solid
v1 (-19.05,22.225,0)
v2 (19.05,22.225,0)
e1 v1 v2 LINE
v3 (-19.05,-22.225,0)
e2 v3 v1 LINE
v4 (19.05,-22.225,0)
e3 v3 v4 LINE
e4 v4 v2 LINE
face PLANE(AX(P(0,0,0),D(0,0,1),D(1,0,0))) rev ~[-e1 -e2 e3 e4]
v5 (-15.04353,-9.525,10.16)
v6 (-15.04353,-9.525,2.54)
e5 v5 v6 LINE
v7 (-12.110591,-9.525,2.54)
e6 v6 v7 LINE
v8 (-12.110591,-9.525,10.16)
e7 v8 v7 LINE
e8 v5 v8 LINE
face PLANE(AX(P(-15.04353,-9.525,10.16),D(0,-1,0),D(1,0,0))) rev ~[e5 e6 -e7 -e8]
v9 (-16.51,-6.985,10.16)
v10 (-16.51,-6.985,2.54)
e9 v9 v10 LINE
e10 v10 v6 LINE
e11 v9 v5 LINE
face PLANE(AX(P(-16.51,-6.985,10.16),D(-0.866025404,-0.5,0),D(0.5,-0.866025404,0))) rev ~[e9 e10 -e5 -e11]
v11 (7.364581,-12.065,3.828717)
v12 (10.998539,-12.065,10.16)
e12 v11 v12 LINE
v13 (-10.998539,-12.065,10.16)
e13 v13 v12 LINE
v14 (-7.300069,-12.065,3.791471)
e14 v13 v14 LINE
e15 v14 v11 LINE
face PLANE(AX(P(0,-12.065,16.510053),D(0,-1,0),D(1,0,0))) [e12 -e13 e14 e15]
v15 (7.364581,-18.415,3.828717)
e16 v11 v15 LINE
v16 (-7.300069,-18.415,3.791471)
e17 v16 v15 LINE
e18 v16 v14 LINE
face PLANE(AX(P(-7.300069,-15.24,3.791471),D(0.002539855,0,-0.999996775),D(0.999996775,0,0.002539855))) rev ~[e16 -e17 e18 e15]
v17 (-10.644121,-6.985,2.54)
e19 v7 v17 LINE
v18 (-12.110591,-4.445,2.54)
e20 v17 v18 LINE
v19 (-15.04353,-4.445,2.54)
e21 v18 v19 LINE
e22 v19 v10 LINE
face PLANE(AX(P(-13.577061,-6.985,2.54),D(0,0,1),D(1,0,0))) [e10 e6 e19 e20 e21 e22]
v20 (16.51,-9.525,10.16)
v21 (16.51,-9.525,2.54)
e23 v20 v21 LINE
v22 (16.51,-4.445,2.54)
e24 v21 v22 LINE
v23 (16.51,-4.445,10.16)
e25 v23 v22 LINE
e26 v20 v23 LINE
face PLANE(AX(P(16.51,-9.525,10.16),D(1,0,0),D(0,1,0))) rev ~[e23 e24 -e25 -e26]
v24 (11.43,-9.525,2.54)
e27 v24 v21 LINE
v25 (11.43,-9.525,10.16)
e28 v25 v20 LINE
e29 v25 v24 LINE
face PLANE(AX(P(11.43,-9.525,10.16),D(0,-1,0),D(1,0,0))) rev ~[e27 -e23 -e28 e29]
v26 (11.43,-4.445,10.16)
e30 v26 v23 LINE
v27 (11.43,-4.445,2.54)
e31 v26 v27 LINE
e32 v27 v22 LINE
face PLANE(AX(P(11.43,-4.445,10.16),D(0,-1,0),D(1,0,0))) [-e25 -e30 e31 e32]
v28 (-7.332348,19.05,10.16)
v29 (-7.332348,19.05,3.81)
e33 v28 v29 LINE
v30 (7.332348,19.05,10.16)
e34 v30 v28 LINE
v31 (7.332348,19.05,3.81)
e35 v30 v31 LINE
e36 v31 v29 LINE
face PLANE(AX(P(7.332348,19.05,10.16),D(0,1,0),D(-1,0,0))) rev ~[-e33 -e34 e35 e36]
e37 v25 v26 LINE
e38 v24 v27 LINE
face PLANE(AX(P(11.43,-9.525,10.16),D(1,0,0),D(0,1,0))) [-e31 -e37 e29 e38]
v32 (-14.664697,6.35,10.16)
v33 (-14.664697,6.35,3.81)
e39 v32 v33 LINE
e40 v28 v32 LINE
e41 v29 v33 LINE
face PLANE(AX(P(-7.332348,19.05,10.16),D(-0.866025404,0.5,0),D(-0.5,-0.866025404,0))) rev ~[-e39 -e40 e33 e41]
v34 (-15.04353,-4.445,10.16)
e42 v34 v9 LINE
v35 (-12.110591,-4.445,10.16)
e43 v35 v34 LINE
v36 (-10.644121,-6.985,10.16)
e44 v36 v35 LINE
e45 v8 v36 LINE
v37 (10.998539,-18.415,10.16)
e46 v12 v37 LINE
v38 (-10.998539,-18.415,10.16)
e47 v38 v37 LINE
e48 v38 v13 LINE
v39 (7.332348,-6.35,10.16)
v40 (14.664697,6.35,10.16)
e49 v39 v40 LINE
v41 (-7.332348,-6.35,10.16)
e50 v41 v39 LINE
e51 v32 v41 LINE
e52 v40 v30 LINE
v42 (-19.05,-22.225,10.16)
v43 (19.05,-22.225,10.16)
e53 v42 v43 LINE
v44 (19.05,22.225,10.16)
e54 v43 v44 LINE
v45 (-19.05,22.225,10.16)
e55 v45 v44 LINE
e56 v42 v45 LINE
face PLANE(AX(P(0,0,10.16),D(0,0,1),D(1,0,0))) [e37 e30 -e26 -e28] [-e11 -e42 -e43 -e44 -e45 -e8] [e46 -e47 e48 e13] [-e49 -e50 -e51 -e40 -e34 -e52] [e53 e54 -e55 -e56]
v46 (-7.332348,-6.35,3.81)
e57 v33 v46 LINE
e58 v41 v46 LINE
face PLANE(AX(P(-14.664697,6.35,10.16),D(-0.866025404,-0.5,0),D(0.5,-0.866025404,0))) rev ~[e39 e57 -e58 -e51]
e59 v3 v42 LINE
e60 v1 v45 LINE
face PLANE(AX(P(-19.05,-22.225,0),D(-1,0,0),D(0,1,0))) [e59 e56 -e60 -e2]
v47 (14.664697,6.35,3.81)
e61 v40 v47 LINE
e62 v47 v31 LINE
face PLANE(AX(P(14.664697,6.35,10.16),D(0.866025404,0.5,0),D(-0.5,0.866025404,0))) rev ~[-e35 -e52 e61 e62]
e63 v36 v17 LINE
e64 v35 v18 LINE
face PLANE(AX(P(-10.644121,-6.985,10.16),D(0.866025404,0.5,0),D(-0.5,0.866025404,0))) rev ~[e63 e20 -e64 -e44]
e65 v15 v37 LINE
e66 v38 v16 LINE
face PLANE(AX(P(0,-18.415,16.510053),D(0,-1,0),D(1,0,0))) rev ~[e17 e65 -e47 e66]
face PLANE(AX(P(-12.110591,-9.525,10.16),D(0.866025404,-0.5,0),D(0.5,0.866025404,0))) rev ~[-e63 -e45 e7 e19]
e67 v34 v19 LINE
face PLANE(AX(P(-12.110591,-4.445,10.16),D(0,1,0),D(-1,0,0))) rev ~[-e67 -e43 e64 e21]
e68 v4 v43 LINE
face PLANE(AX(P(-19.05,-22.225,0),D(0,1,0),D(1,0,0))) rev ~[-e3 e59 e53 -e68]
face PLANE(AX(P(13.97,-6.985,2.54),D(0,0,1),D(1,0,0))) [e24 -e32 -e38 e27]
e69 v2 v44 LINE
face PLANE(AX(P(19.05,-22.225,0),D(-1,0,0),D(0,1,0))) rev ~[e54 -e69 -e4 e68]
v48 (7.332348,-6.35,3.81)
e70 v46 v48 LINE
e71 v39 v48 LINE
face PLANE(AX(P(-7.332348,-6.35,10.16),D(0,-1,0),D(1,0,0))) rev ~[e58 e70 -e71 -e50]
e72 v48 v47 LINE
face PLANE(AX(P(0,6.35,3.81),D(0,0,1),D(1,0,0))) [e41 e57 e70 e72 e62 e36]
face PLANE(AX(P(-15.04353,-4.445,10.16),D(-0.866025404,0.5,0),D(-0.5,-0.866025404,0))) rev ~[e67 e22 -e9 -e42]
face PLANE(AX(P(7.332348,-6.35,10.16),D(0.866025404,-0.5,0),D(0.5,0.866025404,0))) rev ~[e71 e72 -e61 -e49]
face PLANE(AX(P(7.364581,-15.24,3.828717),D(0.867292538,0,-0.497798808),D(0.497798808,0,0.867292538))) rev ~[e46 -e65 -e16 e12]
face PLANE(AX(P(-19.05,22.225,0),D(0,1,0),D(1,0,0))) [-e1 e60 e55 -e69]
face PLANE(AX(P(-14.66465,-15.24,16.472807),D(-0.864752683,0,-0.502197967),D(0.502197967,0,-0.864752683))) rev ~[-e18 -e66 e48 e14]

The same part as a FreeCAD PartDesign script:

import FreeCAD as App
import Part
import Sketcher

V = App.Vector
Q = App.Units.Quantity


def add_polygon(sketch, points):
    """Adds a closed chain of lines whose ends are joined by coincident constraints."""
    first, n = sketch.GeometryCount, len(points)
    for a, b in zip(points, points[1:] + points[:1]):
        sketch.addGeometry(Part.LineSegment(App.Vector(*a, 0), App.Vector(*b, 0)), False)
    for i in range(n):
        sketch.addConstraint(Sketcher.Constraint("Coincident", first + i, 2, first + (i + 1) % n, 1))

doc = App.newDocument("Part")
params = doc.addObject("Spreadsheet::Sheet", "Params")
for row, (alias, value) in enumerate([
    ("sketch1_width", "1.5 in"),
    ("sketch1_height", "1.75 in"),
    ("pad1_length", "0.4 in"),
    ("pocket1_length", "0.25 in"),
    ("pocket2_length", "0.125 in"),
    ("pocket2_length2", "0.125 in"),
    ("pocket3_length", "0.3 in"),
    ("sketch5_width", "0.2 in"),
    ("pocket4_length", "0.3 in"),
], start=1):
    params.set(f"A{row}", alias)
    params.set(f"B{row}", "=" + value)
    params.setAlias(f"B{row}", alias)

body = doc.addObject("PartDesign::Body", "Body")

# Sketch on XY plane
sketch1 = body.newObject("Sketcher::SketchObject", "Sketch")
sketch1.AttachmentSupport = (doc.getObject("XY_Plane"), [""])
sketch1.MapMode = "FlatFace"
add_polygon(sketch1, [(-19, 22), (-19, -22), (19, -22), (19, 22)])  # lines 0-3
sketch1.addConstraint(Sketcher.Constraint("Vertical", 0))
sketch1.addConstraint(Sketcher.Constraint("Horizontal", 1))
sketch1.addConstraint(Sketcher.Constraint("Vertical", 2))
sketch1.addConstraint(Sketcher.Constraint("Horizontal", 3))
sketch1.addConstraint(Sketcher.Constraint("Symmetric", 0, 2, 2, 2, -1, 1))
sketch1.addConstraint(Sketcher.Constraint("DistanceX", 1, 1, 1, 2, Q("1.5 in")))
sketch1.addConstraint(Sketcher.Constraint("DistanceY", 0, 2, 0, 1, Q("1.75 in")))
sketch1.setExpression("Constraints[9]", "Params.sketch1_width")
sketch1.setExpression("Constraints[10]", "Params.sketch1_height")
pad1 = body.newObject("PartDesign::Pad", "Pad")
pad1.Profile = sketch1
pad1.setExpression("Length", "Params.pad1_length")

# Sketch on XY plane
sketch2 = body.newObject("Sketcher::SketchObject", "Sketch001")
sketch2.AttachmentSupport = (doc.getObject("XY_Plane"), [""])
sketch2.MapMode = "FlatFace"
sketch2.AttachmentOffset = App.Placement(V(0, 0, 0.4 * 25.4), App.Rotation())
add_polygon(sketch2, [(15, 6), (7, 19), (-7, 19), (-15, 6), (-7, -6), (7, -6)])  # lines 0-5
sketch2.addConstraint(Sketcher.Constraint("Horizontal", 1))
sketch2.addConstraint(Sketcher.Constraint("Horizontal", 4))
sketch2.addConstraint(Sketcher.Constraint("Symmetric", 2, 2, 5, 2, -2))
sketch2.addConstraint(Sketcher.Constraint("Parallel", 0, 3))
sketch2.addConstraint(Sketcher.Constraint("Parallel", 2, 5))
sketch2.addConstraint(Sketcher.Constraint("Vertical", 1, 2, 3, 2))
sketch2.addConstraint(Sketcher.Constraint("Vertical", 0, 2, 4, 2))
sketch2.addConstraint(Sketcher.Constraint("Angle", 0, Q("120 deg")))
sketch2.addConstraint(Sketcher.Constraint("DistanceY", 3, 2, 1, 2, Q("1 in")))
sketch2.addConstraint(Sketcher.Constraint("DistanceY", -1, 1, 0, 2, Q("0.75 in")))
sketch2.addConstraint(Sketcher.Constraint("DistanceX", 1, 2, 1, 1, 14.664697))
pocket1 = body.newObject("PartDesign::Pocket", "Pocket")
pocket1.Profile = sketch2
pocket1.setExpression("Length", "Params.pocket1_length")

# Sketch on XZ plane
sketch3 = body.newObject("Sketcher::SketchObject", "Sketch002")
sketch3.AttachmentSupport = (doc.getObject("XZ_Plane"), [""])
sketch3.MapMode = "FlatFace"
sketch3.AttachmentOffset = App.Placement(V(0, 0, 0.6 * 25.4), App.Rotation())
add_polygon(sketch3, [(7, 4), (15, 17), (7, 29), (-7, 29), (-15, 16), (-7, 4)])  # lines 0-5
sketch3.addConstraint(Sketcher.Constraint("Parallel", 0, 3))
sketch3.addConstraint(Sketcher.Constraint("Parallel", 1, 4))
sketch3.addConstraint(Sketcher.Constraint("Parallel", 2, 5))
sketch3.addConstraint(Sketcher.Constraint("Equal", 0, 1))
sketch3.addConstraint(Sketcher.Constraint("Equal", 1, 2))
sketch3.addConstraint(Sketcher.Constraint("Equal", 2, 3))
sketch3.addConstraint(Sketcher.Constraint("DistanceY", -1, 1, 0, 2, 16.547299))
sketch3.addConstraint(Sketcher.Constraint("DistanceX", 3, 2, 0, 2, 29.329299))
sketch3.addConstraint(Sketcher.Constraint("DistanceX", -1, 1, 0, 2, 14.66465))
sketch3.addConstraint(Sketcher.Constraint("DistanceX", -1, 1, 1, 2, 7.300069))
sketch3.addConstraint(Sketcher.Constraint("DistanceX", 2, 2, -1, 1, 7.364581))
sketch3.addConstraint(Sketcher.Constraint("DistanceY", -1, 1, 2, 2, 29.191389))
pocket2 = body.newObject("PartDesign::Pocket", "Pocket001")
pocket2.Profile = sketch3
pocket2.Type = "TwoLengths"
pocket2.setExpression("Length", "Params.pocket2_length")
pocket2.setExpression("Length2", "Params.pocket2_length2")

# Sketch on XY plane
sketch4 = body.newObject("Sketcher::SketchObject", "Sketch003")
sketch4.AttachmentSupport = (doc.getObject("XY_Plane"), [""])
sketch4.MapMode = "FlatFace"
sketch4.AttachmentOffset = App.Placement(V(0, 0, 0.4 * 25.4), App.Rotation())
add_polygon(sketch4, [(-10.6, -7), (-12.1, -4.4), (-15, -4.4), (-16.5, -7), (-15, -9.5), (-12.1, -9.5)])  # lines 0-5
sketch4.addConstraint(Sketcher.Constraint("Horizontal", 1))
sketch4.addConstraint(Sketcher.Constraint("Horizontal", 4))
sketch4.addConstraint(Sketcher.Constraint("Parallel", 0, 3))
sketch4.addConstraint(Sketcher.Constraint("Parallel", 2, 5))
sketch4.addConstraint(Sketcher.Constraint("Horizontal", 2, 2, 5, 2))
sketch4.addConstraint(Sketcher.Constraint("Vertical", 1, 2, 3, 2))
sketch4.addConstraint(Sketcher.Constraint("Vertical", 0, 2, 4, 2))
sketch4.addConstraint(Sketcher.Constraint("Angle", 0, Q("120 deg")))
sketch4.addConstraint(Sketcher.Constraint("DistanceY", 2, 2, 1, 2, Q("0.1 in")))
sketch4.addConstraint(Sketcher.Constraint("DistanceX", 2, 2, -1, 1, Q("0.65 in")))
sketch4.addConstraint(Sketcher.Constraint("DistanceY", 0, 2, -1, 1, Q("0.175 in")))
sketch4.addConstraint(Sketcher.Constraint("DistanceX", 1, 2, 1, 1, 2.932939))
pocket3 = body.newObject("PartDesign::Pocket", "Pocket002")
pocket3.Profile = sketch4
pocket3.setExpression("Length", "Params.pocket3_length")

# Sketch on XY plane
sketch5 = body.newObject("Sketcher::SketchObject", "Sketch004")
sketch5.AttachmentSupport = (doc.getObject("XY_Plane"), [""])
sketch5.MapMode = "FlatFace"
sketch5.AttachmentOffset = App.Placement(V(0, 0, 0.4 * 25.4), App.Rotation())
add_polygon(sketch5, [(11, -4), (11, -10), (17, -10), (17, -4)])  # lines 0-3
sketch5.addConstraint(Sketcher.Constraint("Vertical", 0))
sketch5.addConstraint(Sketcher.Constraint("Horizontal", 1))
sketch5.addConstraint(Sketcher.Constraint("Vertical", 2))
sketch5.addConstraint(Sketcher.Constraint("Horizontal", 3))
sketch5.addConstraint(Sketcher.Constraint("Equal", 3, 0))
sketch5.addConstraint(Sketcher.Constraint("DistanceX", 1, 1, 1, 2, Q("0.2 in")))
sketch5.addConstraint(Sketcher.Constraint("DistanceX", -1, 1, 0, 2, Q("0.45 in")))
sketch5.addConstraint(Sketcher.Constraint("DistanceY", 0, 2, -1, 1, Q("0.375 in")))
sketch5.setExpression("Constraints[9]", "Params.sketch5_width")
pocket4 = body.newObject("PartDesign::Pocket", "Pocket003")
pocket4.Profile = sketch5
pocket4.setExpression("Length", "Params.pocket4_length")

doc.recompute()
